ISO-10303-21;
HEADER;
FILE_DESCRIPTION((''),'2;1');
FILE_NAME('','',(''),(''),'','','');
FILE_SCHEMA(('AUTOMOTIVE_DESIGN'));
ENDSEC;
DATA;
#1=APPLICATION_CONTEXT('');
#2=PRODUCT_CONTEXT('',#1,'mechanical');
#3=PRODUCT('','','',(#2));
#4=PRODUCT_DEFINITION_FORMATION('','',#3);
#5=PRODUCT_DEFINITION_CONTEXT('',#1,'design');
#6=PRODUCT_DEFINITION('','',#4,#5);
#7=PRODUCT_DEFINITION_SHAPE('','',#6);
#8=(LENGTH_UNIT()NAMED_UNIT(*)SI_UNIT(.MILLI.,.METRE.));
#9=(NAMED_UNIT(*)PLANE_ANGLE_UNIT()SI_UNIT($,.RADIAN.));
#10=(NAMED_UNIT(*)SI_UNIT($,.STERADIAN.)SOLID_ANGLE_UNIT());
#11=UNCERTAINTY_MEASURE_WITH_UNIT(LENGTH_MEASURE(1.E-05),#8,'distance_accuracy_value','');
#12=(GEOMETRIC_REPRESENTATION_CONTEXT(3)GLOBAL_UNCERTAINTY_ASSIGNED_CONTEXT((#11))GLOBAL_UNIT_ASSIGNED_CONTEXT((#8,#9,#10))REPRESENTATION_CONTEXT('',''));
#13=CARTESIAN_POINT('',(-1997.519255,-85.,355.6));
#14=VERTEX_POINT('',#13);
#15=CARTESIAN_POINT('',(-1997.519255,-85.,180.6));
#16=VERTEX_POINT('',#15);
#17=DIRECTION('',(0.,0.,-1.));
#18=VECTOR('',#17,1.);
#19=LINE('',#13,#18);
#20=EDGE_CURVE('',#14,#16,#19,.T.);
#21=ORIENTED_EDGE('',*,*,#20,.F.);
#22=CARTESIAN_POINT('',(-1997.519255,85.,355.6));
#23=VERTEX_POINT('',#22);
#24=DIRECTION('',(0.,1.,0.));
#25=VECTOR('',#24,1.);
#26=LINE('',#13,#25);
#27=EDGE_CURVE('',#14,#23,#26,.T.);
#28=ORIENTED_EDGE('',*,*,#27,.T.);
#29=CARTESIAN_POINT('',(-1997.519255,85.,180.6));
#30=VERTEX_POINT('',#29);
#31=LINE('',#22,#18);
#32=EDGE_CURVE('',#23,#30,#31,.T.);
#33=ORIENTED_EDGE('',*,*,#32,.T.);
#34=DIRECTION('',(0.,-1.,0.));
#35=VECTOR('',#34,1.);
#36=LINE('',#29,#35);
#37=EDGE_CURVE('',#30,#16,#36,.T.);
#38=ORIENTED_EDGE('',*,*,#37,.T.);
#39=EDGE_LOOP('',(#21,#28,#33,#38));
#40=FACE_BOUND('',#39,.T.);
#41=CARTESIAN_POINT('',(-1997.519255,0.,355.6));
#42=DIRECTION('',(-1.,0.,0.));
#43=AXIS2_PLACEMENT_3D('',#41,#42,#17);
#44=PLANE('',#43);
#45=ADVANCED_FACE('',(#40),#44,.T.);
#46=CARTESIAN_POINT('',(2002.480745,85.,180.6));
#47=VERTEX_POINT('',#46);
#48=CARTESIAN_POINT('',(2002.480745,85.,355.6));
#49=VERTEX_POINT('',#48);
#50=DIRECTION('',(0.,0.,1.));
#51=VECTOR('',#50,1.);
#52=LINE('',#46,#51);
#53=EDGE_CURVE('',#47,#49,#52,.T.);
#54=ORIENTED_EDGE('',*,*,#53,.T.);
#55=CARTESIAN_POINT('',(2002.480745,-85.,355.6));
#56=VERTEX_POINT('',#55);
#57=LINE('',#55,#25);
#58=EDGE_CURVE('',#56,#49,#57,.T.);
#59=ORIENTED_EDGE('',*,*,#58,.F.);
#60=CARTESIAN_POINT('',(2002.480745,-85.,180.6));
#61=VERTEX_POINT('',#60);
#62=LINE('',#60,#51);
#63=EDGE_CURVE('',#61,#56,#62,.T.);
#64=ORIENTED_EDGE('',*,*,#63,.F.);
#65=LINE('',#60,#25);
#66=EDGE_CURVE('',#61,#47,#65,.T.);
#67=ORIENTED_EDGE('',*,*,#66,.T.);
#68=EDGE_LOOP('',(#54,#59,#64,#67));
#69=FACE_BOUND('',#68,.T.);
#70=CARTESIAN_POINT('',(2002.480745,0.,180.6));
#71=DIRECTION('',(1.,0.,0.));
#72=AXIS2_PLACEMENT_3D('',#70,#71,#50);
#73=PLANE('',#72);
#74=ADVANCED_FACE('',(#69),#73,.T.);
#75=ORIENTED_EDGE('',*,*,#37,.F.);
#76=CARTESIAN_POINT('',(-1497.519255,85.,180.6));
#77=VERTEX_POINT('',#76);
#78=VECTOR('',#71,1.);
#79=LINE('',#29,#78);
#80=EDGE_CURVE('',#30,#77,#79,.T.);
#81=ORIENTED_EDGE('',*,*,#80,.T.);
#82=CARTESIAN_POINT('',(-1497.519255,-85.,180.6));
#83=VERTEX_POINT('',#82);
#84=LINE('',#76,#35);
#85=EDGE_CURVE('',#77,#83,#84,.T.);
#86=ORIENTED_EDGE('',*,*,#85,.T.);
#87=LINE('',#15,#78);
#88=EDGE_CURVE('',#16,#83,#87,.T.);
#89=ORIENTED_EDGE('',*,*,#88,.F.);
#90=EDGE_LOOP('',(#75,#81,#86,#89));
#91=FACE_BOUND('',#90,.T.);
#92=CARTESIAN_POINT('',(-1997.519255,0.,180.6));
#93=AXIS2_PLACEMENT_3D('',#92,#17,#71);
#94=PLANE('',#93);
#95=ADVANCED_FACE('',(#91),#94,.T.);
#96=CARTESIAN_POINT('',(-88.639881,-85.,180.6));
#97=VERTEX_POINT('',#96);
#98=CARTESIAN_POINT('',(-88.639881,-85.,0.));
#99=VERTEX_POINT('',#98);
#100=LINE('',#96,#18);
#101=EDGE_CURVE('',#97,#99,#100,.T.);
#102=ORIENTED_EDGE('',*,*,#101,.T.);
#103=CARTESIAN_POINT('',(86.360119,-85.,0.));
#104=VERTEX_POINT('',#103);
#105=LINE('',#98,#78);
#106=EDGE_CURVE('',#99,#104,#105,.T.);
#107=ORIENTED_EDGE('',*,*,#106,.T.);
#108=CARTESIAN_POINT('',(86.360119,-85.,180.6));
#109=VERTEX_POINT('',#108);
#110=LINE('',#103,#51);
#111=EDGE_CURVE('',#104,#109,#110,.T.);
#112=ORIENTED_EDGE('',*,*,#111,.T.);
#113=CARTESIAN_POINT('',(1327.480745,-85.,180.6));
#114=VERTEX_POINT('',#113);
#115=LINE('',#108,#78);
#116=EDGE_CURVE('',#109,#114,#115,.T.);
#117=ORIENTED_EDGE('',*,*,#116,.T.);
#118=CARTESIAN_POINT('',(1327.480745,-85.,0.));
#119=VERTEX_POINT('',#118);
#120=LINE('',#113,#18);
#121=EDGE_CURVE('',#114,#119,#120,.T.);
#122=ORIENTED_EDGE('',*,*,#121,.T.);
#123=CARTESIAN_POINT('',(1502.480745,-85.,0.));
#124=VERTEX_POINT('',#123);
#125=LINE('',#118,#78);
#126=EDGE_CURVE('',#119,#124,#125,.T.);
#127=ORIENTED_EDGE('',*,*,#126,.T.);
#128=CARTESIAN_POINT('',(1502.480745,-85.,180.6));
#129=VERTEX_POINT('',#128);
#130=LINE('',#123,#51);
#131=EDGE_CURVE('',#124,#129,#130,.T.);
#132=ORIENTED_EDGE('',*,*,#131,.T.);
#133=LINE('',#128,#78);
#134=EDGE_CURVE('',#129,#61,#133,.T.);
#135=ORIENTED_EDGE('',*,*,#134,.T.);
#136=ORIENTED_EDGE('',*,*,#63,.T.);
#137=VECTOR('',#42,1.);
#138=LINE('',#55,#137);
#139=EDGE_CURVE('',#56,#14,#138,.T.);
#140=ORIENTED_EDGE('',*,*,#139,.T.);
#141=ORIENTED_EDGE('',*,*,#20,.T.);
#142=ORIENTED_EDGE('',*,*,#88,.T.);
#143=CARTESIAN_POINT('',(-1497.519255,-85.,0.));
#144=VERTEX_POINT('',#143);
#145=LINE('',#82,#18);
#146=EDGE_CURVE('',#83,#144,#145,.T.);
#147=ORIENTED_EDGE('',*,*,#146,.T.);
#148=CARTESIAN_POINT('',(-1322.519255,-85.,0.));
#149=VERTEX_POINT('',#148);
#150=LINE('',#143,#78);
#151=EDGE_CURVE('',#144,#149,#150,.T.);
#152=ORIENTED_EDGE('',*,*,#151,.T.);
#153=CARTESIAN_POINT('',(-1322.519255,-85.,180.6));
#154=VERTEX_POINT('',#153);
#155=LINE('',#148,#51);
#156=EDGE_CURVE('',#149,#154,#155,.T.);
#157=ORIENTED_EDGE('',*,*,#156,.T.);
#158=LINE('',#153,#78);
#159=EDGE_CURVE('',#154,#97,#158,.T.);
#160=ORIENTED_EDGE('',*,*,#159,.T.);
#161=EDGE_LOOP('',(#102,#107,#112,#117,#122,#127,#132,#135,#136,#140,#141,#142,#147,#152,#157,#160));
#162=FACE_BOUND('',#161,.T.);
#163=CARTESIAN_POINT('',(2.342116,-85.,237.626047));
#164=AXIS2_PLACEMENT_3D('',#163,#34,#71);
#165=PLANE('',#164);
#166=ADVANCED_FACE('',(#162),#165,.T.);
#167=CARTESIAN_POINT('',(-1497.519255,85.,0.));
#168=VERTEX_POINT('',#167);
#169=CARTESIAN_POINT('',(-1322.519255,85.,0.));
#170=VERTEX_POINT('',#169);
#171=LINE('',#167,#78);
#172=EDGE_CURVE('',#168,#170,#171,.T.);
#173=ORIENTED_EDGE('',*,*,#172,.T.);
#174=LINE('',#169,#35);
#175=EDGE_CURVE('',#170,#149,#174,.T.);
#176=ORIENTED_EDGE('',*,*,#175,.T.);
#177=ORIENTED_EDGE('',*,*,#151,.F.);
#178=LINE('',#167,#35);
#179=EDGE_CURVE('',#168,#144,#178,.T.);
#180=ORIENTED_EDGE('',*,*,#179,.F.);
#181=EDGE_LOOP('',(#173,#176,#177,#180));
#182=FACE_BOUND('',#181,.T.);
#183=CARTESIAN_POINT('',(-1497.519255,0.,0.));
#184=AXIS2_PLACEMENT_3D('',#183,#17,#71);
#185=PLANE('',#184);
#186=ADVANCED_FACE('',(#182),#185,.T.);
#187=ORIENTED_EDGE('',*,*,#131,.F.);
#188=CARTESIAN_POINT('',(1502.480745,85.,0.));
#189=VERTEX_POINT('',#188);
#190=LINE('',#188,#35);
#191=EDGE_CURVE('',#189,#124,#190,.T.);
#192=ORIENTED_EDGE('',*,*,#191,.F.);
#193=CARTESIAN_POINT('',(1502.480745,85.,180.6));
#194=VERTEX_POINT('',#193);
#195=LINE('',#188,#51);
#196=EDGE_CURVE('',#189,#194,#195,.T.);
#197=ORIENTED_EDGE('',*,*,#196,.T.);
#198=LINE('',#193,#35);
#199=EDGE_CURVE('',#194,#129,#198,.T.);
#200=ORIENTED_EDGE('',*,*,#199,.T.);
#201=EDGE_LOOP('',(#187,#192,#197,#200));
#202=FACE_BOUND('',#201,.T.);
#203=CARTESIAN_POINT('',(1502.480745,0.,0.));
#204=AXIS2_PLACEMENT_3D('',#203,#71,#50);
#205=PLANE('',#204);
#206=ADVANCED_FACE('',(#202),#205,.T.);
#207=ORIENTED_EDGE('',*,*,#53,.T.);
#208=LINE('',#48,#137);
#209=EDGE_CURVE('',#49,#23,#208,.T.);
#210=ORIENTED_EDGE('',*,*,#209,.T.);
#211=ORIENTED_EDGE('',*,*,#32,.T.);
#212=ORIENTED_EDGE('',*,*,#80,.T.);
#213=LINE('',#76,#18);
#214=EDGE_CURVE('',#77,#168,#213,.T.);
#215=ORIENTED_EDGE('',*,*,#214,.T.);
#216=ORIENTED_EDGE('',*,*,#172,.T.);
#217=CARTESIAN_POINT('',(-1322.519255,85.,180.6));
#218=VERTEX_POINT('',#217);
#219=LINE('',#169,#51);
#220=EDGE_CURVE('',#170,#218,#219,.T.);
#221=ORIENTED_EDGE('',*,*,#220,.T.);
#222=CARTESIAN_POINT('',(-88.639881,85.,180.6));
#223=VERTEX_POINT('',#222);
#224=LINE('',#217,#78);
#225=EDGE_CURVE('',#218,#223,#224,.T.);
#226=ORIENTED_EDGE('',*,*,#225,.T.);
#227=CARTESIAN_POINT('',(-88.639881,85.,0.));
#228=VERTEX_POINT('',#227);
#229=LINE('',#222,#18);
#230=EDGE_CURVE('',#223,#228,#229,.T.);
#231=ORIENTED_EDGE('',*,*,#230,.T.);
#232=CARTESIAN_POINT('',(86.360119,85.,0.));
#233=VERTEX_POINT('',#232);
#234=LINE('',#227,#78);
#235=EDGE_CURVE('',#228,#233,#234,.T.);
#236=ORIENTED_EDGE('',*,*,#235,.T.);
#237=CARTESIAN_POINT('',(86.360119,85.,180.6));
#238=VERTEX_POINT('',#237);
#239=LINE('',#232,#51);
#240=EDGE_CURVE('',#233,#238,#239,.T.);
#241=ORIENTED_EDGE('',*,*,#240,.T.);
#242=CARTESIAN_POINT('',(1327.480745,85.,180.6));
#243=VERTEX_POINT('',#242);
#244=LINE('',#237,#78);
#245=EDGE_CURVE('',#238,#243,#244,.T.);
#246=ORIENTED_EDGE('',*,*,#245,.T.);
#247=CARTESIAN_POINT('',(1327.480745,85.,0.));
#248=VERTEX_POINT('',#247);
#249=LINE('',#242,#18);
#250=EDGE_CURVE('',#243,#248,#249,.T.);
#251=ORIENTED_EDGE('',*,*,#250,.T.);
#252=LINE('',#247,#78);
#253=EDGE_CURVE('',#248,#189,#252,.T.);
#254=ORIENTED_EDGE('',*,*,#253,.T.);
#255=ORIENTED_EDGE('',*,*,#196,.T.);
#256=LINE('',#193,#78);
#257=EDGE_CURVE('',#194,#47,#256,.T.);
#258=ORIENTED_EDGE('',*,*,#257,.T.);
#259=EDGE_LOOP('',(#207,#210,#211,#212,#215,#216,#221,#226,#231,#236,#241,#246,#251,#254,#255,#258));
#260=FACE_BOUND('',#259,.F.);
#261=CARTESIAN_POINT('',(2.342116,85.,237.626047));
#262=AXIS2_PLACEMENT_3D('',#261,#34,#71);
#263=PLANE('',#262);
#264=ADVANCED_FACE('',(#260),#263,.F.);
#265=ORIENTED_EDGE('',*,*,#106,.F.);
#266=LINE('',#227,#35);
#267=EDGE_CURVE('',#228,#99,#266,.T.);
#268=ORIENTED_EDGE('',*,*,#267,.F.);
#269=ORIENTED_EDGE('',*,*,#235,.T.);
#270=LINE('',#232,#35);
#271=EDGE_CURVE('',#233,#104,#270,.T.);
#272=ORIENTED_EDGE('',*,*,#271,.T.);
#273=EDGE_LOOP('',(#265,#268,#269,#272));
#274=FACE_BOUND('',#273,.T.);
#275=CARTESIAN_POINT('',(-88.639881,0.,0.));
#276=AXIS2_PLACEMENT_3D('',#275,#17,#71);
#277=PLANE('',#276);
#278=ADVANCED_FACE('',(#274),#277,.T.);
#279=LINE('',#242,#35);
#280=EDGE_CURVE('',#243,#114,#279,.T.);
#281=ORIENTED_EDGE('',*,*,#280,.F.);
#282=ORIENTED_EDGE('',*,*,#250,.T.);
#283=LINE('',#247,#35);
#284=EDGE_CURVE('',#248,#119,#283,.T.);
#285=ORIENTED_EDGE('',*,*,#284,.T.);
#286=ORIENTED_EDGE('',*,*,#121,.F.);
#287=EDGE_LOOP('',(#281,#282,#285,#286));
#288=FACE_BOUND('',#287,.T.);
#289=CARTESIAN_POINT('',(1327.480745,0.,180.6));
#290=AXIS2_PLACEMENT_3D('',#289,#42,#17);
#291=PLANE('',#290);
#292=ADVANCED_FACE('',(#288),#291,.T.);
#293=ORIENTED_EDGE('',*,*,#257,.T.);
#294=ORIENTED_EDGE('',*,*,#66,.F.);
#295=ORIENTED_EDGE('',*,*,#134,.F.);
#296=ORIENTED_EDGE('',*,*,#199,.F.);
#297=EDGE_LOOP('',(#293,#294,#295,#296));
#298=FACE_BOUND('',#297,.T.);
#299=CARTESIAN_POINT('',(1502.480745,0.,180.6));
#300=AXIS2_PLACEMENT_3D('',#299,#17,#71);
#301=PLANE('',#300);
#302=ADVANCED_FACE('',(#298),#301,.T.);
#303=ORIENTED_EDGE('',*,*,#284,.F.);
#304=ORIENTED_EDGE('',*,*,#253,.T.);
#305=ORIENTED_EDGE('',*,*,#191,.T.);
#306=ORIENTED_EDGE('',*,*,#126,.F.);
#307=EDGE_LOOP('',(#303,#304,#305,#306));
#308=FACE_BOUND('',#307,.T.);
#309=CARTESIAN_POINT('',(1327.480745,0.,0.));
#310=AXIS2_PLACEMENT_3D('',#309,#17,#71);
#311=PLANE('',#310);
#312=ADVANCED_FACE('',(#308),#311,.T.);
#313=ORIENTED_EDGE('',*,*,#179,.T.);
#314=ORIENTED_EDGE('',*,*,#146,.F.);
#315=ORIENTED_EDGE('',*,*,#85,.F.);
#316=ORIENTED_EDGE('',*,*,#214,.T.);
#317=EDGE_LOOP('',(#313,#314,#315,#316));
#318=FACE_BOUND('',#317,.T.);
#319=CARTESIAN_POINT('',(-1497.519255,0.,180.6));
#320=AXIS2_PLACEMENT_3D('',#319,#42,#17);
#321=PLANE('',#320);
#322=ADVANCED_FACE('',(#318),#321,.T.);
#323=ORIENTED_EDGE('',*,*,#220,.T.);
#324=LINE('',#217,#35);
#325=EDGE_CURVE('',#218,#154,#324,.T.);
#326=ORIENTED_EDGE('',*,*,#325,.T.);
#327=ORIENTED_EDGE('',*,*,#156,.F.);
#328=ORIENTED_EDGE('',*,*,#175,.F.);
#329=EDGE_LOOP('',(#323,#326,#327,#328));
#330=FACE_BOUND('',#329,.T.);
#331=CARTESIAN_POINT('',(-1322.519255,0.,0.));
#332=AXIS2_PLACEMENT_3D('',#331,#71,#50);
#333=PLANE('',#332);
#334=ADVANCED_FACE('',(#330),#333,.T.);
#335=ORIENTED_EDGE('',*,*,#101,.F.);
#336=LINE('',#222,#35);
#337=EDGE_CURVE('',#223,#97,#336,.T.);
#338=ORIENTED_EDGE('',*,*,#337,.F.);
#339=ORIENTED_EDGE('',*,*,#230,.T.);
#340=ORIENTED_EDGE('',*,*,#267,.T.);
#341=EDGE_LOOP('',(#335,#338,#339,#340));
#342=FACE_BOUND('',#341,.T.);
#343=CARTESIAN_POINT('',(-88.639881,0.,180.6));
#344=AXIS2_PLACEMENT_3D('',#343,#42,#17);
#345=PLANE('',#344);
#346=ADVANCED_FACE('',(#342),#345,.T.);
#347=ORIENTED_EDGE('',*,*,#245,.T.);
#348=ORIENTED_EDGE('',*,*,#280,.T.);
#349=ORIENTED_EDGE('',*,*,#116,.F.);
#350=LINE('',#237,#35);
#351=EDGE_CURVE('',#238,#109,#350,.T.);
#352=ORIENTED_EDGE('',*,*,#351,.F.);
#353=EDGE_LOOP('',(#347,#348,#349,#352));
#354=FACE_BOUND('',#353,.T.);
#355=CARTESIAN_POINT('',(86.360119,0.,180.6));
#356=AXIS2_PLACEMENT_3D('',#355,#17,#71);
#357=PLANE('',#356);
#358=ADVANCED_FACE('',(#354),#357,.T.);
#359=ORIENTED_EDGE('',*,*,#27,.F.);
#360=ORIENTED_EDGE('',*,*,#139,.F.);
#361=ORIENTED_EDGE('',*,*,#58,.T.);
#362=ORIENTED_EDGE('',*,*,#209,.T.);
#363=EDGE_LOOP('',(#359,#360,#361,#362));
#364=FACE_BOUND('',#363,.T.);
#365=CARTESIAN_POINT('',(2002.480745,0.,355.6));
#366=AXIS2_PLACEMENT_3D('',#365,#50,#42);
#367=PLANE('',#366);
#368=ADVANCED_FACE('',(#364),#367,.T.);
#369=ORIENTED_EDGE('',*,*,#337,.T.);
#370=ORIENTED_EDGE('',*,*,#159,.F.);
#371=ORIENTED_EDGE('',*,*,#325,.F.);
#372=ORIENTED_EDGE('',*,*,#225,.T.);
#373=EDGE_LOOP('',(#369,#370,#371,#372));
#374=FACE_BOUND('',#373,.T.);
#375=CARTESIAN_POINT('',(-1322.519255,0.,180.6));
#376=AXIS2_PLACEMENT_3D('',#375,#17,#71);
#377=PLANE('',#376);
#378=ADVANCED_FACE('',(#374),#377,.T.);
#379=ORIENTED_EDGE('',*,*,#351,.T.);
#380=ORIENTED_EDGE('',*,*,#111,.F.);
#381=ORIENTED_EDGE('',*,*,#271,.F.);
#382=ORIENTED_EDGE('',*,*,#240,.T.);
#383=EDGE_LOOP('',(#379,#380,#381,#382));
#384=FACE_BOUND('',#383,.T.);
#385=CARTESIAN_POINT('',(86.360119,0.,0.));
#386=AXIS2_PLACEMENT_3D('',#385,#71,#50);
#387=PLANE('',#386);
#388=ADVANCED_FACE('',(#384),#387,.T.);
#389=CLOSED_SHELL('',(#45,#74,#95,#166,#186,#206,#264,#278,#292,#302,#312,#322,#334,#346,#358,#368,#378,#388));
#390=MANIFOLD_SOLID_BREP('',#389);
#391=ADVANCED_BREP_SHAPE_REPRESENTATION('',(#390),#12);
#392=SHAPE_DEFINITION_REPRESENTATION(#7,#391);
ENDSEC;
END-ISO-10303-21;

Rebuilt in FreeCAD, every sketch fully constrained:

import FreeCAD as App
import Part
import Sketcher
Q = App.Units.Quantity

doc = App.newDocument("Part")
body = doc.addObject("PartDesign::Body", "Body")

# Sketch on XZ plane
sketch1 = body.newObject("Sketcher::SketchObject", "Sketch")
sketch1.AttachmentSupport = (doc.getObject("XZ_Plane"), [""])
sketch1.MapMode = "FlatFace"
sketch1.addGeometry(Part.LineSegment(App.Vector(-1997.519255, 355.6, 0), App.Vector(-1997.519255, 180.6, 0)), False)
sketch1.addGeometry(Part.LineSegment(App.Vector(-1997.519255, 180.6, 0), App.Vector(-1497.519255, 180.6, 0)), False)
sketch1.addGeometry(Part.LineSegment(App.Vector(-1497.519255, 180.6, 0), App.Vector(-1497.519255, 0, 0)), False)
sketch1.addGeometry(Part.LineSegment(App.Vector(-1497.519255, 0, 0), App.Vector(-1322.519255, 0, 0)), False)
sketch1.addGeometry(Part.LineSegment(App.Vector(-1322.519255, 0, 0), App.Vector(-1322.519255, 180.6, 0)), False)
sketch1.addGeometry(Part.LineSegment(App.Vector(-1322.519255, 180.6, 0), App.Vector(-88.639881, 180.6, 0)), False)
sketch1.addGeometry(Part.LineSegment(App.Vector(-88.639881, 180.6, 0), App.Vector(-88.639881, 0, 0)), False)
sketch1.addGeometry(Part.LineSegment(App.Vector(-88.639881, 0, 0), App.Vector(86.360119, 0, 0)), False)
sketch1.addGeometry(Part.LineSegment(App.Vector(86.360119, 0, 0), App.Vector(86.360119, 180.6, 0)), False)
sketch1.addGeometry(Part.LineSegment(App.Vector(86.360119, 180.6, 0), App.Vector(1327.480745, 180.6, 0)), False)
sketch1.addGeometry(Part.LineSegment(App.Vector(1327.480745, 180.6, 0), App.Vector(1327.480745, 0, 0)), False)
sketch1.addGeometry(Part.LineSegment(App.Vector(1327.480745, 0, 0), App.Vector(1502.480745, 0, 0)), False)
sketch1.addGeometry(Part.LineSegment(App.Vector(1502.480745, 0, 0), App.Vector(1502.480745, 180.6, 0)), False)
sketch1.addGeometry(Part.LineSegment(App.Vector(1502.480745, 180.6, 0), App.Vector(2002.480745, 180.6, 0)), False)
sketch1.addGeometry(Part.LineSegment(App.Vector(2002.480745, 180.6, 0), App.Vector(2002.480745, 355.6, 0)), False)
sketch1.addGeometry(Part.LineSegment(App.Vector(2002.480745, 355.6, 0), App.Vector(-1997.519255, 355.6, 0)), False)
sketch1.addConstraint(Sketcher.Constraint("Coincident", 0, 2, 1, 1))
sketch1.addConstraint(Sketcher.Constraint("Coincident", 1, 2, 2, 1))
sketch1.addConstraint(Sketcher.Constraint("Coincident", 2, 2, 3, 1))
sketch1.addConstraint(Sketcher.Constraint("Coincident", 3, 2, 4, 1))
sketch1.addConstraint(Sketcher.Constraint("Coincident", 4, 2, 5, 1))
sketch1.addConstraint(Sketcher.Constraint("Coincident", 5, 2, 6, 1))
sketch1.addConstraint(Sketcher.Constraint("Coincident", 6, 2, 7, 1))
sketch1.addConstraint(Sketcher.Constraint("Coincident", 7, 2, 8, 1))
sketch1.addConstraint(Sketcher.Constraint("Coincident", 8, 2, 9, 1))
sketch1.addConstraint(Sketcher.Constraint("Coincident", 9, 2, 10, 1))
sketch1.addConstraint(Sketcher.Constraint("Coincident", 10, 2, 11, 1))
sketch1.addConstraint(Sketcher.Constraint("Coincident", 11, 2, 12, 1))
sketch1.addConstraint(Sketcher.Constraint("Coincident", 12, 2, 13, 1))
sketch1.addConstraint(Sketcher.Constraint("Coincident", 13, 2, 14, 1))
sketch1.addConstraint(Sketcher.Constraint("Coincident", 14, 2, 15, 1))
sketch1.addConstraint(Sketcher.Constraint("Coincident", 15, 2, 0, 1))
sketch1.addConstraint(Sketcher.Constraint("Vertical", 0))
sketch1.addConstraint(Sketcher.Constraint("Horizontal", 1))
sketch1.addConstraint(Sketcher.Constraint("Vertical", 2))
sketch1.addConstraint(Sketcher.Constraint("Horizontal", 3))
sketch1.addConstraint(Sketcher.Constraint("Vertical", 4))
sketch1.addConstraint(Sketcher.Constraint("Horizontal", 5))
sketch1.addConstraint(Sketcher.Constraint("Vertical", 6))
sketch1.addConstraint(Sketcher.Constraint("Horizontal", 7))
sketch1.addConstraint(Sketcher.Constraint("Vertical", 8))
sketch1.addConstraint(Sketcher.Constraint("Horizontal", 9))
sketch1.addConstraint(Sketcher.Constraint("Vertical", 10))
sketch1.addConstraint(Sketcher.Constraint("Horizontal", 11))
sketch1.addConstraint(Sketcher.Constraint("Vertical", 12))
sketch1.addConstraint(Sketcher.Constraint("Horizontal", 13))
sketch1.addConstraint(Sketcher.Constraint("Vertical", 14))
sketch1.addConstraint(Sketcher.Constraint("Horizontal", 15))
sketch1.addConstraint(Sketcher.Constraint("PointOnObject", 2, 2, -1))
sketch1.addConstraint(Sketcher.Constraint("PointOnObject", 6, 2, -1))
sketch1.addConstraint(Sketcher.Constraint("PointOnObject", 10, 2, -1))
sketch1.addConstraint(Sketcher.Constraint("Horizontal", 1, 2, 4, 2))
sketch1.addConstraint(Sketcher.Constraint("Horizontal", 5, 2, 8, 2))
sketch1.addConstraint(Sketcher.Constraint("Horizontal", 9, 2, 12, 2))
sketch1.addConstraint(Sketcher.Constraint("Equal", 3, 7))
sketch1.addConstraint(Sketcher.Constraint("Equal", 7, 11))
sketch1.addConstraint(Sketcher.Constraint("Equal", 1, 13))
sketch1.addConstraint(Sketcher.Constraint("Equal", 11, 0))
sketch1.addConstraint(Sketcher.Constraint("DistanceX", 1, 1, 1, 2, Q("500 mm")))
sketch1.addConstraint(Sketcher.Constraint("DistanceX", 3, 1, 3, 2, Q("175 mm")))
sketch1.addConstraint(Sketcher.Constraint("DistanceX", 15, 2, 15, 1, Q("4000 mm")))
sketch1.addConstraint(Sketcher.Constraint("DistanceY", 2, 2, 2, 1, Q("180.6 mm")))
sketch1.addConstraint(Sketcher.Constraint("DistanceX", 5, 1, 5, 2, Q("1233.879373 mm")))
sketch1.addConstraint(Sketcher.Constraint("DistanceX", 5, 2, -1, 1, Q("88.639881 mm")))
pad1 = body.newObject("PartDesign::Pad", "Pad")
pad1.Profile = sketch1
pad1.Length = 170
pad1.Midplane = True

doc.recompute()
